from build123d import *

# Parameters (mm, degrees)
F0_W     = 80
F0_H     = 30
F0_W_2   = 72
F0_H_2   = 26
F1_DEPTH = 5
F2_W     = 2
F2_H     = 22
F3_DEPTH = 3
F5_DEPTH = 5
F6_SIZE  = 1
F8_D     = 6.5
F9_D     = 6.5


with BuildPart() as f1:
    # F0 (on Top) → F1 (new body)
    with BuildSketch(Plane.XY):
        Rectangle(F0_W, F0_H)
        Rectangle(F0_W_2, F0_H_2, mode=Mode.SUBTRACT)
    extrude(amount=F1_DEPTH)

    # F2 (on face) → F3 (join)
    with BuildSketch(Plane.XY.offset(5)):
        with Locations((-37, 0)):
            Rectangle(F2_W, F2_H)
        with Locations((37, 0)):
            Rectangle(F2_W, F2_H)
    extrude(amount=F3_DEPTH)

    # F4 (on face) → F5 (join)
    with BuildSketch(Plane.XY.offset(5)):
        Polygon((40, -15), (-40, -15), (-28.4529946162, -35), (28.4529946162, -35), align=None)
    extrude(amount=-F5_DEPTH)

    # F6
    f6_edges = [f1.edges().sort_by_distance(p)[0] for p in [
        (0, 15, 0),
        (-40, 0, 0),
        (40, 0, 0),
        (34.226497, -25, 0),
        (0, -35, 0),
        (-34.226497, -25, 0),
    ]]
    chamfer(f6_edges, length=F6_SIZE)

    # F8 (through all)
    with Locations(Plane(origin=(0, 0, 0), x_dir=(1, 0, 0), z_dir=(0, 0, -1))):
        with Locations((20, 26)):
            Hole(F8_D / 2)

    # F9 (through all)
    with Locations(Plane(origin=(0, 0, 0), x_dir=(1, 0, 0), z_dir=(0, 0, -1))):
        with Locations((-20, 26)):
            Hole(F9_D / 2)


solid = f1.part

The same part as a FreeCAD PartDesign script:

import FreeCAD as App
import Part
import Sketcher
Q = App.Units.Quantity


def edges_at(feature, points):
    """Names of the edges that pass closest to the given points."""
    edges = feature.Shape.Edges
    near = lambda p: min(range(len(edges)), key=lambda i: edges[i].distToShape(Part.Vertex(*p))[0])
    return sorted({f"Edge{near(p) + 1}" for p in points})


def add_polygon(sketch, points):
    """Adds a closed chain of lines whose ends are joined by coincident constraints."""
    first, n = sketch.GeometryCount, len(points)
    for a, b in zip(points, points[1:] + points[:1]):
        sketch.addGeometry(Part.LineSegment(App.Vector(*a, 0), App.Vector(*b, 0)), False)
    for i in range(n):
        sketch.addConstraint(Sketcher.Constraint("Coincident", first + i, 2, first + (i + 1) % n, 1))

doc = App.newDocument("Part")
body = doc.addObject("PartDesign::Body", "Body")

# Sketch on XY plane
sketch1 = body.newObject("Sketcher::SketchObject", "Sketch")
sketch1.AttachmentSupport = (doc.getObject("XY_Plane"), [""])
sketch1.MapMode = "FlatFace"
add_polygon(sketch1, [(-40, 15), (-40, -15), (40, -15), (40, 15)])  # lines 0-3
add_polygon(sketch1, [(36, -13), (-36, -13), (-36, 13), (36, 13)])  # lines 4-7
sketch1.addConstraint([
    Sketcher.Constraint("Vertical", 0),
    Sketcher.Constraint("Horizontal", 1),
    Sketcher.Constraint("Vertical", 2),
    Sketcher.Constraint("Horizontal", 3),
    Sketcher.Constraint("Horizontal", 4),
    Sketcher.Constraint("Vertical", 5),
    Sketcher.Constraint("Horizontal", 6),
    Sketcher.Constraint("Vertical", 7),
    Sketcher.Constraint("Symmetric", 0, 2, 2, 2, -1, 1),
    Sketcher.Constraint("Symmetric", 4, 2, 6, 2, -1, 1),
    Sketcher.Constraint("DistanceX", 1, 1, 1, 2, 80.0),
    Sketcher.Constraint("DistanceX", 4, 2, 4, 1, 72.0),
    Sketcher.Constraint("DistanceY", 0, 2, 0, 1, 30.0),
    Sketcher.Constraint("DistanceY", 5, 1, 5, 2, 26.0),
])
pad1 = body.newObject("PartDesign::Pad", "Pad")
pad1.Profile = sketch1
pad1.Length = 5

# Sketch on XY plane
sketch2 = body.newObject("Sketcher::SketchObject", "Sketch001")
sketch2.AttachmentSupport = (doc.getObject("XY_Plane"), [""])
sketch2.MapMode = "FlatFace"
sketch2.AttachmentOffset = App.Placement(App.Vector(0, 0, 5), App.Rotation())
add_polygon(sketch2, [(-38, 11), (-38, -11), (-36, -11), (-36, 11)])  # lines 0-3
add_polygon(sketch2, [(36, 11), (36, -11), (38, -11), (38, 11)])  # lines 4-7
sketch2.addConstraint([
    Sketcher.Constraint("Vertical", 0),
    Sketcher.Constraint("Horizontal", 1),
    Sketcher.Constraint("Vertical", 2),
    Sketcher.Constraint("Horizontal", 3),
    Sketcher.Constraint("Vertical", 4),
    Sketcher.Constraint("Horizontal", 5),
    Sketcher.Constraint("Vertical", 6),
    Sketcher.Constraint("Horizontal", 7),
    Sketcher.Constraint("Symmetric", 2, 2, 4, 2, -1, 1),
    Sketcher.Constraint("Symmetric", 0, 2, 6, 2, -1, 1),
    Sketcher.Constraint("Horizontal", 1, 2, 4, 2),
    Sketcher.Constraint("DistanceX", 1, 1, 1, 2, 2.0),
    Sketcher.Constraint("DistanceY", 0, 2, 0, 1, 22.0),
    Sketcher.Constraint("DistanceX", 0, 2, -1, 1, 38.0),
])
pad2 = body.newObject("PartDesign::Pad", "Pad001")
pad2.Profile = sketch2
pad2.Length = 3

# Sketch on XY plane
sketch3 = body.newObject("Sketcher::SketchObject", "Sketch002")
sketch3.AttachmentSupport = (doc.getObject("XY_Plane"), [""])
sketch3.MapMode = "FlatFace"
sketch3.AttachmentOffset = App.Placement(App.Vector(0, 0, 5), App.Rotation())
add_polygon(sketch3, [(40, -15), (-40, -15), (-28, -35), (28, -35)])  # lines 0-3
sketch3.addConstraint([
    Sketcher.Constraint("Horizontal", 0),
    Sketcher.Constraint("Horizontal", 2),
    Sketcher.Constraint("Equal", 1, 3),
    Sketcher.Constraint("DistanceX", 0, 2, 0, 1, 80.0),
    Sketcher.Constraint("Angle", 1, Q("-60 deg")),
    Sketcher.Constraint("DistanceX", 0, 2, -1, 1, 40.0),
    Sketcher.Constraint("DistanceY", 0, 2, -1, 1, 15.0),
    Sketcher.Constraint("DistanceY", 1, 2, -1, 1, 35.0),
])
pad3 = body.newObject("PartDesign::Pad", "Pad002")
pad3.Profile = sketch3
pad3.Length = 5
pad3.Reversed = True
doc.recompute()

chamfer = body.newObject("PartDesign::Chamfer", "Chamfer")
chamfer.Base = (pad3, edges_at(pad3, [
    (0, 15, 0),
    (-40, 0, 0),
    (40, 0, 0),
    (34.226, -25, 0),
    (0, -35, 0),
    (-34.226, -25, 0),
]))
chamfer.Size = 1

# Sketch on XY plane
sketch4 = body.newObject("Sketcher::SketchObject", "Sketch003")
sketch4.AttachmentSupport = (doc.getObject("XY_Plane"), [""])
sketch4.MapMode = "FlatFace"
sketch4.addGeometry(Part.Circle(App.Vector(20, -26, 0), App.Vector(0, 0, 1), 3.2), False)
sketch4.addConstraint([
    Sketcher.Constraint("Diameter", 0, 6.5),
    Sketcher.Constraint("DistanceX", -1, 1, 0, 3, 20.0),
    Sketcher.Constraint("DistanceY", 0, 3, -1, 1, 26.0),
])
doc.recompute()
hole = body.newObject("PartDesign::Hole", "Hole")
hole.Profile = sketch4
hole.ThreadType = "None"
hole.Diameter = 6.5
hole.DepthType = "ThroughAll"
hole.Reversed = True

# Sketch on XY plane
sketch5 = body.newObject("Sketcher::SketchObject", "Sketch004")
sketch5.AttachmentSupport = (doc.getObject("XY_Plane"), [""])
sketch5.MapMode = "FlatFace"
sketch5.addGeometry(Part.Circle(App.Vector(-20, -26, 0), App.Vector(0, 0, 1), 3.2), False)
sketch5.addConstraint([
    Sketcher.Constraint("Diameter", 0, 6.5),
    Sketcher.Constraint("DistanceX", 0, 3, -1, 1, 20.0),
    Sketcher.Constraint("DistanceY", 0, 3, -1, 1, 26.0),
])
doc.recompute()
hole2 = body.newObject("PartDesign::Hole", "Hole001")
hole2.Profile = sketch5
hole2.ThreadType = "None"
hole2.Diameter = 6.5
hole2.DepthType = "ThroughAll"
hole2.Reversed = True

doc.recompute()
